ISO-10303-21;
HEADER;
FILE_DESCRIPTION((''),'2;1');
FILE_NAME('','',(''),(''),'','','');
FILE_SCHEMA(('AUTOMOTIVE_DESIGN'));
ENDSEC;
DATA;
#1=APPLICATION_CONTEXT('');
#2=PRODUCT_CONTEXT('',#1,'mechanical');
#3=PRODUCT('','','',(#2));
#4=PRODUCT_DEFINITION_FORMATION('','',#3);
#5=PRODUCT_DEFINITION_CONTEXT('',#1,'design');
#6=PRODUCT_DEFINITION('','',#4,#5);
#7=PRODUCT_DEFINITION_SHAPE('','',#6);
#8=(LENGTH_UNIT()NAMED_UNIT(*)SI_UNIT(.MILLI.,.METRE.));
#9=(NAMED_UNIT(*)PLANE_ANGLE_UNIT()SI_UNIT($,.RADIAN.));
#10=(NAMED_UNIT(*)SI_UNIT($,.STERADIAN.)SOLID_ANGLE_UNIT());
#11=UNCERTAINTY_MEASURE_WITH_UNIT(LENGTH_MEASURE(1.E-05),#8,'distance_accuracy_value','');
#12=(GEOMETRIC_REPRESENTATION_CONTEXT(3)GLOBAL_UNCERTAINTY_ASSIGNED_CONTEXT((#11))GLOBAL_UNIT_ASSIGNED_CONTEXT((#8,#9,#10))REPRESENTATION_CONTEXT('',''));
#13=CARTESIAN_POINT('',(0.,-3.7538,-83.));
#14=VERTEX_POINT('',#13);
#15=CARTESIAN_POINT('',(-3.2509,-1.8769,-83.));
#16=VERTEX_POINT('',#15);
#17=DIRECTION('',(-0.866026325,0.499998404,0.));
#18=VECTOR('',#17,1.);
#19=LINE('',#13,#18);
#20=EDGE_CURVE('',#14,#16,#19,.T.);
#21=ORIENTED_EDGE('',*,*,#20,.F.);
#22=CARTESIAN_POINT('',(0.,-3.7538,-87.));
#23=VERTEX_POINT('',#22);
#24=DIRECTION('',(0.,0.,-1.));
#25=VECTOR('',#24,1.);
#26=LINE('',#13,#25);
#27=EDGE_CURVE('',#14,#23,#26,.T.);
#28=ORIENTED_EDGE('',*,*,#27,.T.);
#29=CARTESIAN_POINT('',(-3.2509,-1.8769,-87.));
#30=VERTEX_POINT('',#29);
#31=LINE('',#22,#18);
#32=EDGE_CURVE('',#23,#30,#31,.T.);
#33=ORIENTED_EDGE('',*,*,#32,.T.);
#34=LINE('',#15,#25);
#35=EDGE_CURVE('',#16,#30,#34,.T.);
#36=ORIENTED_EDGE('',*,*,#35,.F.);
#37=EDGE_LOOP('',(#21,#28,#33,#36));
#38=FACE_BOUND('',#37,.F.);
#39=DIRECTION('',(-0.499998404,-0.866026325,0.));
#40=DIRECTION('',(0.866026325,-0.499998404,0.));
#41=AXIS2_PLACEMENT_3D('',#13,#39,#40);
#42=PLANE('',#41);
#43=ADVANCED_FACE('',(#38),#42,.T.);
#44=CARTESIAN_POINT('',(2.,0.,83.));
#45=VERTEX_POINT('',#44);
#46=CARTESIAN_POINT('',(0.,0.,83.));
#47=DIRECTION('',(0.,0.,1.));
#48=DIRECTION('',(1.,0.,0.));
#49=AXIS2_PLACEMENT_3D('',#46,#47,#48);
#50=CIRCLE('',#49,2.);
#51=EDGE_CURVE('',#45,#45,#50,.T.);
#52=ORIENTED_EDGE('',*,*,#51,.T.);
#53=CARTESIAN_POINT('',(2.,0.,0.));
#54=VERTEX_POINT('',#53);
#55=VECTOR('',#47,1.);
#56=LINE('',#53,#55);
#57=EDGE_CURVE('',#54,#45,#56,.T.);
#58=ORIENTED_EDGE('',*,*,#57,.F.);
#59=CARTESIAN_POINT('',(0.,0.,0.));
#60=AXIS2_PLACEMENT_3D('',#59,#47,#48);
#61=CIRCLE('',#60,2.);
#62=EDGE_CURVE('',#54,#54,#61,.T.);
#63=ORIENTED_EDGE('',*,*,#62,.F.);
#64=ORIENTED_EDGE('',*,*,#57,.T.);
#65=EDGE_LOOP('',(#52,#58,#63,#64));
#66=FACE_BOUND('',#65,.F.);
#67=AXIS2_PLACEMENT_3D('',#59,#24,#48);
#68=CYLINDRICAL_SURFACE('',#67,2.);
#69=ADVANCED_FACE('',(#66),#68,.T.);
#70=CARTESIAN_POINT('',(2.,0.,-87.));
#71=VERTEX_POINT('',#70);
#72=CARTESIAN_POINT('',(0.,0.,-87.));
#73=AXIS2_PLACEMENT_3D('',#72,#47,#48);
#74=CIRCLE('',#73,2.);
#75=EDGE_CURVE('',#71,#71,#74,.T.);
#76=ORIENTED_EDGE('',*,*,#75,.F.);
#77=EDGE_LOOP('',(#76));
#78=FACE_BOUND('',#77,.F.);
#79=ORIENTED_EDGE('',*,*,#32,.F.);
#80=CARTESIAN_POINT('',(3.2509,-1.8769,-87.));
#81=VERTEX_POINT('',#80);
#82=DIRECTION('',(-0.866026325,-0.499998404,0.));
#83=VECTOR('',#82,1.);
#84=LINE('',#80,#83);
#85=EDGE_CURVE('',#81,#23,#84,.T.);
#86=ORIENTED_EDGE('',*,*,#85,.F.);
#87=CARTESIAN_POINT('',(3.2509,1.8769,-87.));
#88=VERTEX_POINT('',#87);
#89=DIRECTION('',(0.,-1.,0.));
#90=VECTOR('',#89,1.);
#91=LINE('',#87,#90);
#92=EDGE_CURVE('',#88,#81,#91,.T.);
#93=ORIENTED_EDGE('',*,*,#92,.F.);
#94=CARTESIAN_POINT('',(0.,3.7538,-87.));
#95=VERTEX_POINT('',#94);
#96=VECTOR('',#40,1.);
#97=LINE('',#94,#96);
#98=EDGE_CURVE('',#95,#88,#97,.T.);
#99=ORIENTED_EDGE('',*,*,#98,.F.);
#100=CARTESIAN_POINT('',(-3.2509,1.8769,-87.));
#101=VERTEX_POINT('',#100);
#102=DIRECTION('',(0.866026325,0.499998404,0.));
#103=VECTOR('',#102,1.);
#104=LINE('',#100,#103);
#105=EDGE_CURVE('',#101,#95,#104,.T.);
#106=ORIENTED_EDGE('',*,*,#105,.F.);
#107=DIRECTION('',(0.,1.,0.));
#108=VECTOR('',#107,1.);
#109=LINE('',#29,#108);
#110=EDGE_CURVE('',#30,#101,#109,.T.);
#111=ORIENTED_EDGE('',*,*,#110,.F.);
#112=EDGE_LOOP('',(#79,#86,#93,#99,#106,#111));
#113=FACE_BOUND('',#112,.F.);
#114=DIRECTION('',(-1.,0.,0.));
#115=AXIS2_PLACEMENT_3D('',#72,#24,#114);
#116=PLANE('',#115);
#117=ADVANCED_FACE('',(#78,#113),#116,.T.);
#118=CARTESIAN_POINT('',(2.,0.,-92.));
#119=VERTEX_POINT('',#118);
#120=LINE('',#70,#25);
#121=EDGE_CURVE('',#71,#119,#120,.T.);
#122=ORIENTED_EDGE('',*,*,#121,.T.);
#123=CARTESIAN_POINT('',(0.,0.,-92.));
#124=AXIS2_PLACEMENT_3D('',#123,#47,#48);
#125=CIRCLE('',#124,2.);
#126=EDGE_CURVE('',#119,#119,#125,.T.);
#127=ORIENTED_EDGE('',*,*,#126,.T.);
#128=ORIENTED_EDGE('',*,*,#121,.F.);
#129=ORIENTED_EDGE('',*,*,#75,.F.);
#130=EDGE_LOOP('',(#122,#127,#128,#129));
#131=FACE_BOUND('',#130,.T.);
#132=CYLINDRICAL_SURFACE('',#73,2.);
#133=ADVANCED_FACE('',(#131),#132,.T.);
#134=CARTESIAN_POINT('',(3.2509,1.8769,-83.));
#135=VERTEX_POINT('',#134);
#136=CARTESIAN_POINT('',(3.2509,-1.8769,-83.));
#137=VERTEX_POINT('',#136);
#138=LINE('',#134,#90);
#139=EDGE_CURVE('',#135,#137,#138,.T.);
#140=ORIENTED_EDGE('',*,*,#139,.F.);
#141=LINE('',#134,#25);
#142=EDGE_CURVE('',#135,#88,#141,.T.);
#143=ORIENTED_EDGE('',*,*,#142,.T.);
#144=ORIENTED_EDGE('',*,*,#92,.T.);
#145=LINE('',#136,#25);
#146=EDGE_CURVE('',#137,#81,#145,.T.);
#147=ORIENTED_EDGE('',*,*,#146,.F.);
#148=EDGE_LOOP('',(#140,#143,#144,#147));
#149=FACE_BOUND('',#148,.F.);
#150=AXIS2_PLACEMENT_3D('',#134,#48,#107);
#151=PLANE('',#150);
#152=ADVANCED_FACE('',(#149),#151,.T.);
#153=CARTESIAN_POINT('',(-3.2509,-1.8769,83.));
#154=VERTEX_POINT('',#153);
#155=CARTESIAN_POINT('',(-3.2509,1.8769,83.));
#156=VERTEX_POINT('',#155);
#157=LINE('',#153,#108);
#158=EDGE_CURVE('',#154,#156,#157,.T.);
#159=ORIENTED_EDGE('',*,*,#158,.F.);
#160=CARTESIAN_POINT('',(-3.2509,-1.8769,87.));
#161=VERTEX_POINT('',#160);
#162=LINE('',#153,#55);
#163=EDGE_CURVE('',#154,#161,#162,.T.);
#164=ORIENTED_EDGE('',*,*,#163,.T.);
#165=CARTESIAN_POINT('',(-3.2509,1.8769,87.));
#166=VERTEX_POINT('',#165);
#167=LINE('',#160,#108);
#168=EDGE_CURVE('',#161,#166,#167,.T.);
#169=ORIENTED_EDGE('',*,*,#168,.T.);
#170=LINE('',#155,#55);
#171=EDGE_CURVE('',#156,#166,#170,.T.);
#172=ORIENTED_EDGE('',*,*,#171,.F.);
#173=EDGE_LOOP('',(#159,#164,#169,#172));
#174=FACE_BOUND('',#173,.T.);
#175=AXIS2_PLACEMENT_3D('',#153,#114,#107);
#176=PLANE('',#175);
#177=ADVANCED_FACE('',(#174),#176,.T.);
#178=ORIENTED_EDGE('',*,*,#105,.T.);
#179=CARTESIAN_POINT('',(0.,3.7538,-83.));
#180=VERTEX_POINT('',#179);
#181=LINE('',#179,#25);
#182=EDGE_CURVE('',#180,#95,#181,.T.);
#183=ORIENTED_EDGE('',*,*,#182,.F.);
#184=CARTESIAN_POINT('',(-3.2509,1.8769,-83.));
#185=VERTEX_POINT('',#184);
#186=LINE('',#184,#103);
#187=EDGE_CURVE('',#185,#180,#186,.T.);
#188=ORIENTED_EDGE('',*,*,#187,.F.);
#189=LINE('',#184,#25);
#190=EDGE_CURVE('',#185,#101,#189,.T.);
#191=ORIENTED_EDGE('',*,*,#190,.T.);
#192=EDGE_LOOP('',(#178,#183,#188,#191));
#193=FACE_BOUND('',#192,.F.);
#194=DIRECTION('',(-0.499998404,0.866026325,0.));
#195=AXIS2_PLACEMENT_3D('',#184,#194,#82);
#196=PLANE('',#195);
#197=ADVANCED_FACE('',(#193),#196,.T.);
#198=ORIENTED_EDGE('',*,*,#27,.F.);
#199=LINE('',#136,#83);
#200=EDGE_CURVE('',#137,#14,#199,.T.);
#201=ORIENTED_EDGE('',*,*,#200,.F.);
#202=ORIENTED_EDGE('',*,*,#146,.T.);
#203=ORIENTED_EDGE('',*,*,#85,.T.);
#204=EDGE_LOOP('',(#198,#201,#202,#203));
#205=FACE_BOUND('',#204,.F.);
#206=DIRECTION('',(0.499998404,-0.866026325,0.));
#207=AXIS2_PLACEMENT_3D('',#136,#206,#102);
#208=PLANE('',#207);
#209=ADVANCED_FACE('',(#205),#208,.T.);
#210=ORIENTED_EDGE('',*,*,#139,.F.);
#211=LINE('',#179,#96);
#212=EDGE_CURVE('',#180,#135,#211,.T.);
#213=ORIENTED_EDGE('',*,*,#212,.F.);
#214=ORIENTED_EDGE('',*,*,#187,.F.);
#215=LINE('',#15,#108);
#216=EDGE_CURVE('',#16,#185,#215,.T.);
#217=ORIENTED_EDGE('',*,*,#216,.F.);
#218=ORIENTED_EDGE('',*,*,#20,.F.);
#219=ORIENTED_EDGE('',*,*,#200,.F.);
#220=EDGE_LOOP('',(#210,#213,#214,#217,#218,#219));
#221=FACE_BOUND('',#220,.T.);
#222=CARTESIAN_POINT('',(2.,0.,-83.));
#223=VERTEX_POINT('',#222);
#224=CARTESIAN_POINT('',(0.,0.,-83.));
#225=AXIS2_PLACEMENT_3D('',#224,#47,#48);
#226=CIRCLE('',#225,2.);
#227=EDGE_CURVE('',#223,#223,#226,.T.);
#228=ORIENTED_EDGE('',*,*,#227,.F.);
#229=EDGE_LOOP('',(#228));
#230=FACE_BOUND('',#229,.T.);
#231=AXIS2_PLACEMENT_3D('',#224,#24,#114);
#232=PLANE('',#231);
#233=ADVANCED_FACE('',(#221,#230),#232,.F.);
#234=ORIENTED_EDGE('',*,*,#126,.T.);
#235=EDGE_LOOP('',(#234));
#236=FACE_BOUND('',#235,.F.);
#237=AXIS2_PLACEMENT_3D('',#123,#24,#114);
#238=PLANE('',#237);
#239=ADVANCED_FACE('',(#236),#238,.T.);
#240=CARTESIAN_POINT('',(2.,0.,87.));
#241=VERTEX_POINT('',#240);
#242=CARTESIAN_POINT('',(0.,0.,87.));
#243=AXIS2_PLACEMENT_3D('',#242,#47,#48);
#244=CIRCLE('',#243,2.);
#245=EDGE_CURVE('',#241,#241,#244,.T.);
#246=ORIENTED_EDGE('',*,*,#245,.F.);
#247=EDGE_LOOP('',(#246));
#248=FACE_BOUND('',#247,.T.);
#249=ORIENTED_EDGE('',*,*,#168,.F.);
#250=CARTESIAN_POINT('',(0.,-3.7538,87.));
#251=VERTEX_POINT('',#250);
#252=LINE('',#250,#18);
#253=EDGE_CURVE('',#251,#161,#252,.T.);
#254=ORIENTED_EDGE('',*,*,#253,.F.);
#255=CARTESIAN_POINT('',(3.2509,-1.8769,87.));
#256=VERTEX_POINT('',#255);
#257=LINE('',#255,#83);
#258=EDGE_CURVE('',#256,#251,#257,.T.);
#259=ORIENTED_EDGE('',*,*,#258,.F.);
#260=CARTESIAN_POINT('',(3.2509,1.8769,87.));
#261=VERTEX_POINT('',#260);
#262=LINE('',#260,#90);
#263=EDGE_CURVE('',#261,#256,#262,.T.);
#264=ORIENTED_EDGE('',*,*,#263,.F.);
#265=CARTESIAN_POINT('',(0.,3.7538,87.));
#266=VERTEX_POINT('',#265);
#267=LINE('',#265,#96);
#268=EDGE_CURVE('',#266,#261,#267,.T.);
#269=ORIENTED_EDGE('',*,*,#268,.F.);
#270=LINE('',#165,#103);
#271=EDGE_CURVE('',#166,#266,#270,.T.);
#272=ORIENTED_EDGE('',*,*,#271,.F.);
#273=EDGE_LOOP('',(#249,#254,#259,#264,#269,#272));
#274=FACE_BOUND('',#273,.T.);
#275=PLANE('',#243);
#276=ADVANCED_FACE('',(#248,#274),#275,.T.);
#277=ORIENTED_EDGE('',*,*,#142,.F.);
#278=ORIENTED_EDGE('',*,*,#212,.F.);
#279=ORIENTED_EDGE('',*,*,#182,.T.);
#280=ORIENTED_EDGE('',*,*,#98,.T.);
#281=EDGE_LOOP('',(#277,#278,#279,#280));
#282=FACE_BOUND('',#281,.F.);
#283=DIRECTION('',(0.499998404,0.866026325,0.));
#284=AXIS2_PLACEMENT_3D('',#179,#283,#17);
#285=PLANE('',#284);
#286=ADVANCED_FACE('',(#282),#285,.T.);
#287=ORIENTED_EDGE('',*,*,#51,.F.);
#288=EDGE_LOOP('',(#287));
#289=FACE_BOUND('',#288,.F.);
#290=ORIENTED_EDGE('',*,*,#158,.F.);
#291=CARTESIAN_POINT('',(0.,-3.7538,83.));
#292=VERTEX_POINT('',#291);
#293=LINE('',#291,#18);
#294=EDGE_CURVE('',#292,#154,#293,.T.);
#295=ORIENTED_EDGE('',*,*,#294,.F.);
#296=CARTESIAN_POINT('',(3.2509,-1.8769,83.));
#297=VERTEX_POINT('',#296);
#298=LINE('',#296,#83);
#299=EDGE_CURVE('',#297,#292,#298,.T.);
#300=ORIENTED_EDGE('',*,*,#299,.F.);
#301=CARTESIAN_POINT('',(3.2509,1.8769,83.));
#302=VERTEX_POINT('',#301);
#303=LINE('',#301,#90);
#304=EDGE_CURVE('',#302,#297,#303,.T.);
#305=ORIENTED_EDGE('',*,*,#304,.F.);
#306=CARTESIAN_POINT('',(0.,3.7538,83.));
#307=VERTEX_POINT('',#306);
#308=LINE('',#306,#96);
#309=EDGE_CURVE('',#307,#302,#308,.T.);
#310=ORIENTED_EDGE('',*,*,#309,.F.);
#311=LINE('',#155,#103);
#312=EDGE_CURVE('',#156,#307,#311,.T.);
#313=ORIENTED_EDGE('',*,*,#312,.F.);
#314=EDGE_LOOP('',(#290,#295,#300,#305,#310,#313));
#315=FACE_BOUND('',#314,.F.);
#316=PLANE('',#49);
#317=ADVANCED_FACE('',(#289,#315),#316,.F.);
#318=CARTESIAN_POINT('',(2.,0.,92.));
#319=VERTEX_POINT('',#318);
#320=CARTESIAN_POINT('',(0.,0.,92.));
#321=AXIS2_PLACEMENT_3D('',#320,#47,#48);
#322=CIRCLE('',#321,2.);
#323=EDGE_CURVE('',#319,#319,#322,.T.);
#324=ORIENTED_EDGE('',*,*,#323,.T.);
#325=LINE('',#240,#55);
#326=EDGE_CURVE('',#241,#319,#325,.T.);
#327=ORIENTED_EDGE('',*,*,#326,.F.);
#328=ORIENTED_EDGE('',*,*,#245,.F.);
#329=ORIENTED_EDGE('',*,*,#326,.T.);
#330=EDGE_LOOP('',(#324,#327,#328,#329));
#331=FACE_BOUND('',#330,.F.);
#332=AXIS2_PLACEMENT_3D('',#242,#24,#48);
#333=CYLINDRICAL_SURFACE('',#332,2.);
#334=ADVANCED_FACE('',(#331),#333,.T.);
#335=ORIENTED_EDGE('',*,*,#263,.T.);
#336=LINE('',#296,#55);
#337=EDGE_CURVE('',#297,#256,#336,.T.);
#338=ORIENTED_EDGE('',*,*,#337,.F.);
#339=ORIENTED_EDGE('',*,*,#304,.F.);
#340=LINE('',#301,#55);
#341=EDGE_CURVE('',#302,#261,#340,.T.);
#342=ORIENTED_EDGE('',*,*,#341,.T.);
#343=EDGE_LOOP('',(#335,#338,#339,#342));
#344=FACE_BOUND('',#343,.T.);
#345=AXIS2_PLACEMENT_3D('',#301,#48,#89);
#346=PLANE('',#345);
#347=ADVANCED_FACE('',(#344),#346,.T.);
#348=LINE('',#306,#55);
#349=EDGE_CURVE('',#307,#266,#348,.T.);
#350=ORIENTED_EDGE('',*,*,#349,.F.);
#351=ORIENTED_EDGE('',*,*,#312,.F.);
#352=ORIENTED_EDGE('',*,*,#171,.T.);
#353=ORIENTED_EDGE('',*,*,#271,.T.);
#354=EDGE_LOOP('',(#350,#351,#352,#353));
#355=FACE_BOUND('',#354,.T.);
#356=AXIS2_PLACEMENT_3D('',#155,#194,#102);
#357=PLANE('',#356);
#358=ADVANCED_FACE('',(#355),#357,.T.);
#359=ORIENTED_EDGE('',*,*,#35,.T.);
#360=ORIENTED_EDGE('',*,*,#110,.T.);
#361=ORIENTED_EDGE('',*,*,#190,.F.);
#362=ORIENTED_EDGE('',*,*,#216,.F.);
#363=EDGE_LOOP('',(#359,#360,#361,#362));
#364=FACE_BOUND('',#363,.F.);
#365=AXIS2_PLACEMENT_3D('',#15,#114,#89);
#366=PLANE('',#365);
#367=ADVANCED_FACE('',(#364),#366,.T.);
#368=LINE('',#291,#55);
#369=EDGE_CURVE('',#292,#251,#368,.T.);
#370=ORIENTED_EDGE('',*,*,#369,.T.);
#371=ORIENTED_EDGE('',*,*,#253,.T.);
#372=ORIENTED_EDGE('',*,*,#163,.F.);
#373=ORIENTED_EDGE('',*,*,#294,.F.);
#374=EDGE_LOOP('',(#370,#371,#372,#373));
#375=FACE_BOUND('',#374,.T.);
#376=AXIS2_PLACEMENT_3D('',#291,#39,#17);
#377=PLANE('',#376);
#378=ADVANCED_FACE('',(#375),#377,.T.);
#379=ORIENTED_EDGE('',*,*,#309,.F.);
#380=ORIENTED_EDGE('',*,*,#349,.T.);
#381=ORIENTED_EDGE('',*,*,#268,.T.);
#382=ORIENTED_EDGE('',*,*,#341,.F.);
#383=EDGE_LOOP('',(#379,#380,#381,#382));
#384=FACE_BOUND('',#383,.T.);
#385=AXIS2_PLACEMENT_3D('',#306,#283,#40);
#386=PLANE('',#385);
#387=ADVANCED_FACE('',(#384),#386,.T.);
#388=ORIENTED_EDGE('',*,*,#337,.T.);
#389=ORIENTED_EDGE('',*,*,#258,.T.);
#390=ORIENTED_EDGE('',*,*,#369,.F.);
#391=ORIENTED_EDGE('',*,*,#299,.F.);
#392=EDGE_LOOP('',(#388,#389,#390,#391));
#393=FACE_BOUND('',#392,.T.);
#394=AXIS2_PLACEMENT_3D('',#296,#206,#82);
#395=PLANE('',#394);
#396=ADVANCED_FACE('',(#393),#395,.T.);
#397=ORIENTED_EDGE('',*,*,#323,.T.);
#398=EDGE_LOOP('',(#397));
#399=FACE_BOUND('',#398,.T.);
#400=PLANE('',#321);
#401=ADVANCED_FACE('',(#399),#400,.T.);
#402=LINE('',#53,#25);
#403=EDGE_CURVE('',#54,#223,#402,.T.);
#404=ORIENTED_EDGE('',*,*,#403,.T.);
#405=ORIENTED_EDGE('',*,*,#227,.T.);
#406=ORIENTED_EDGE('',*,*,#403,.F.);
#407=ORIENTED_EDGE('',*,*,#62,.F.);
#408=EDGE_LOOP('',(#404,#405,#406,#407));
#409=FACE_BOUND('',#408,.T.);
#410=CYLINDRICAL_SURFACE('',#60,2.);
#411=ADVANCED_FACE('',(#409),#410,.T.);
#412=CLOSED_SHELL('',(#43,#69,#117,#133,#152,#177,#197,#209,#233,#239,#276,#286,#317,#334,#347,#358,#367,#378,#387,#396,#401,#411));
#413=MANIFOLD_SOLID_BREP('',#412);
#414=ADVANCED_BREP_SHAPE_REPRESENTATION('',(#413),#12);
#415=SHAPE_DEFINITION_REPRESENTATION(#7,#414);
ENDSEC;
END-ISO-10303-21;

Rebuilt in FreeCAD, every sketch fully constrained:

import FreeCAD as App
import Part
import Sketcher

V = App.Vector
Q = App.Units.Quantity

doc = App.newDocument("Part")
params = doc.addObject("Spreadsheet::Sheet", "Params")
for row, (alias, value) in enumerate([
    ("sketch1_diameter", "4 mm"),
    ("pad1_length", "83 mm"),
    ("pad2_length", "4 mm"),
    ("sketch3_diameter", "4 mm"),
    ("pad3_length", "5 mm"),
], start=1):
    params.set(f"A{row}", alias)
    params.set(f"B{row}", "=" + value)
    params.setAlias(f"B{row}", alias)

body = doc.addObject("PartDesign::Body", "Body")

# Sketch on XY plane
sketch1 = body.newObject("Sketcher::SketchObject", "Sketch")
sketch1.AttachmentSupport = (doc.getObject("XY_Plane"), [""])
sketch1.MapMode = "FlatFace"
sketch1.addGeometry(Part.Circle(V(0, 0, 0), V(0, 0, 1), 2), False)
sketch1.addConstraint([
    Sketcher.Constraint("Coincident", 0, 3, -1, 1),
    Sketcher.Constraint("Diameter", 0, 4.0),
])
sketch1.setExpression("Constraints[1]", "Params.sketch1_diameter")
pad1 = body.newObject("PartDesign::Pad", "Pad")
pad1.Profile = sketch1
pad1.setExpression("Length", "Params.pad1_length")

# Sketch on XY plane
sketch2 = body.newObject("Sketcher::SketchObject", "Sketch001")
sketch2.AttachmentSupport = (doc.getObject("XY_Plane"), [""])
sketch2.MapMode = "FlatFace"
sketch2.AttachmentOffset = App.Placement(V(0, 0, 83), App.Rotation())
sketch2.addGeometry([
    Part.LineSegment(V(3.3, 1.9, 0), V(0, 3.8, 0)),  # 0
    Part.LineSegment(V(0, 3.8, 0), V(-3.3, 1.9, 0)),  # 1
    Part.LineSegment(V(-3.3, 1.9, 0), V(-3.3, -1.9, 0)),  # 2
    Part.LineSegment(V(-3.3, -1.9, 0), V(0, -3.8, 0)),  # 3
    Part.LineSegment(V(0, -3.8, 0), V(3.3, -1.9, 0)),  # 4
    Part.LineSegment(V(3.3, -1.9, 0), V(3.3, 1.9, 0)),  # 5
], False)
sketch2.addConstraint([
    Sketcher.Constraint("Coincident", 0, 2, 1, 1),
    Sketcher.Constraint("Coincident", 1, 2, 2, 1),
    Sketcher.Constraint("Coincident", 2, 2, 3, 1),
    Sketcher.Constraint("Coincident", 3, 2, 4, 1),
    Sketcher.Constraint("Coincident", 4, 2, 5, 1),
    Sketcher.Constraint("Coincident", 5, 2, 0, 1),
    Sketcher.Constraint("Vertical", 2),
    Sketcher.Constraint("Vertical", 5),
    Sketcher.Constraint("Symmetric", 0, 2, 3, 2, -1, 1),
    Sketcher.Constraint("Symmetric", 1, 2, 4, 2, -1, 1),
    Sketcher.Constraint("PointOnObject", 0, 2, -2),
    Sketcher.Constraint("Parallel", 0, 3),
    Sketcher.Constraint("Horizontal", 2, 2, 4, 2),
    Sketcher.Constraint("Angle", 0, Q("150 deg")),
    Sketcher.Constraint("DistanceY", 2, 2, 2, 1, 3.7538),
    Sketcher.Constraint("DistanceX", 1, 2, -1, 1, 3.251),
])
pad2 = body.newObject("PartDesign::Pad", "Pad001")
pad2.Profile = sketch2
pad2.setExpression("Length", "Params.pad2_length")

# Sketch on XY plane
sketch3 = body.newObject("Sketcher::SketchObject", "Sketch002")
sketch3.AttachmentSupport = (doc.getObject("XY_Plane"), [""])
sketch3.MapMode = "FlatFace"
sketch3.AttachmentOffset = App.Placement(V(0, 0, 87), App.Rotation())
sketch3.addGeometry(Part.Circle(V(0, 0, 0), V(0, 0, 1), 2), False)
sketch3.addConstraint([
    Sketcher.Constraint("Coincident", 0, 3, -1, 1),
    Sketcher.Constraint("Diameter", 0, 4.0),
])
sketch3.setExpression("Constraints[1]", "Params.sketch3_diameter")
pad3 = body.newObject("PartDesign::Pad", "Pad002")
pad3.Profile = sketch3
pad3.setExpression("Length", "Params.pad3_length")
doc.recompute()

mirrored = body.newObject("PartDesign::Mirrored", "Mirrored")
mirrored.TransformMode = "Transform body"
mirrored.MirrorPlane = (doc.getObject("XY_Plane"), [""])
body.Tip = mirrored

doc.recompute()
